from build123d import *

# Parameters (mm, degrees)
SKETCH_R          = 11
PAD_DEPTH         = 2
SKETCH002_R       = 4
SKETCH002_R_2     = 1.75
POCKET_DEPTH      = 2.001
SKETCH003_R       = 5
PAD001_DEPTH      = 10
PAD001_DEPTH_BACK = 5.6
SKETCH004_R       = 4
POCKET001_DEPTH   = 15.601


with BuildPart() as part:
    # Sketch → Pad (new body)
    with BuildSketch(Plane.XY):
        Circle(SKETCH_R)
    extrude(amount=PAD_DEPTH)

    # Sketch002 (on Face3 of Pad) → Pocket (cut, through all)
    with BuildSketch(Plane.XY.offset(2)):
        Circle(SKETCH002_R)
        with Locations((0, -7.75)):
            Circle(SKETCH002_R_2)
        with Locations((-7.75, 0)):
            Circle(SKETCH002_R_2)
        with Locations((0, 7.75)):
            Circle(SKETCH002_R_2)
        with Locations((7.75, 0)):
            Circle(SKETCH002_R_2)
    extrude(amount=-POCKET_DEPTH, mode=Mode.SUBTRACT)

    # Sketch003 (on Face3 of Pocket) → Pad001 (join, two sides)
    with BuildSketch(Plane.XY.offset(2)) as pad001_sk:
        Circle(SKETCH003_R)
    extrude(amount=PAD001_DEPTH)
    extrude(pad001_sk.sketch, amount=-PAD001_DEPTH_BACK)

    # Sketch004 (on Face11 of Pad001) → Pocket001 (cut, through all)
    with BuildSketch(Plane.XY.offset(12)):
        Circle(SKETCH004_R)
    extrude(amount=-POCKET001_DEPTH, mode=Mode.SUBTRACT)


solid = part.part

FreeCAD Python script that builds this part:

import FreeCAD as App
import Part
import Sketcher
Q = App.Units.Quantity

doc = App.newDocument("Part")
params = doc.addObject("Spreadsheet::Sheet", "Params")
for row, (alias, value) in enumerate([
    ("sketch1_diameter", "22 mm"),
    ("pad1_length", "2 mm"),
    ("sketch2_diameter", "8 mm"),
    ("sketch2_diameter2", "3.5 mm"),
    ("sketch3_diameter", "10 mm"),
    ("pad2_length", "10 mm"),
    ("pad2_length2", "5.6 mm"),
    ("sketch4_diameter", "8 mm"),
], start=1):
    params.set(f"A{row}", alias)
    params.set(f"B{row}", "=" + value)
    params.setAlias(f"B{row}", alias)

body = doc.addObject("PartDesign::Body", "Body")

sketch1 = doc.addObject("Sketcher::SketchObject", "Sketch")
body.addObject(sketch1)
sketch1.AttachmentSupport = (doc.XY_Plane, [""])
sketch1.MapMode = "FlatFace"
sketch1.addGeometry(Part.Circle(App.Vector(0, 0, 0), App.Vector(0, 0, 1), 11), False)
sketch1.addConstraint(Sketcher.Constraint("Coincident", 0, 3, -1, 1))
sketch1.addConstraint(Sketcher.Constraint("Diameter", 0, Q("22 mm")))
sketch1.setExpression("Constraints[1]", "Params.sketch1_diameter")
pad1 = doc.addObject("PartDesign::Pad", "Pad")
body.addObject(pad1)
pad1.Profile = sketch1
pad1.setExpression("Length", "Params.pad1_length")

sketch2 = doc.addObject("Sketcher::SketchObject", "Sketch001")
body.addObject(sketch2)
sketch2.AttachmentSupport = (doc.XY_Plane, [""])
sketch2.MapMode = "FlatFace"
sketch2.AttachmentOffset = App.Placement(App.Vector(0, 0, 2), App.Rotation())
sketch2.addGeometry(Part.Circle(App.Vector(0, 0, 0), App.Vector(0, 0, 1), 4), False)
sketch2.addGeometry(Part.Circle(App.Vector(0, -7.8, 0), App.Vector(0, 0, 1), 1.8), False)
sketch2.addGeometry(Part.Circle(App.Vector(-7.8, 0, 0), App.Vector(0, 0, 1), 1.8), False)
sketch2.addGeometry(Part.Circle(App.Vector(0, 7.8, 0), App.Vector(0, 0, 1), 1.8), False)
sketch2.addGeometry(Part.Circle(App.Vector(7.8, 0, 0), App.Vector(0, 0, 1), 1.8), False)
sketch2.addConstraint(Sketcher.Constraint("Coincident", 0, 3, -1, 1))
sketch2.addConstraint(Sketcher.Constraint("Equal", 1, 2))
sketch2.addConstraint(Sketcher.Constraint("Equal", 2, 3))
sketch2.addConstraint(Sketcher.Constraint("Equal", 3, 4))
sketch2.addConstraint(Sketcher.Constraint("Symmetric", 1, 3, 3, 3, -1, 1))
sketch2.addConstraint(Sketcher.Constraint("Symmetric", 2, 3, 4, 3, -1, 1))
sketch2.addConstraint(Sketcher.Constraint("PointOnObject", 1, 3, -2))
sketch2.addConstraint(Sketcher.Constraint("PointOnObject", 2, 3, -1))
sketch2.addConstraint(Sketcher.Constraint("Diameter", 0, Q("8 mm")))
sketch2.addConstraint(Sketcher.Constraint("Diameter", 1, Q("3.5 mm")))
sketch2.addConstraint(Sketcher.Constraint("DistanceY", 1, 3, 3, 3, Q("15.5 mm")))
sketch2.addConstraint(Sketcher.Constraint("DistanceX", 2, 3, 4, 3, Q("15.5 mm")))
sketch2.setExpression("Constraints[8]", "Params.sketch2_diameter")
sketch2.setExpression("Constraints[9]", "Params.sketch2_diameter2")
pocket1 = doc.addObject("PartDesign::Pocket", "Pocket")
body.addObject(pocket1)
pocket1.Profile = sketch2
pocket1.Type = "ThroughAll"

sketch3 = doc.addObject("Sketcher::SketchObject", "Sketch002")
body.addObject(sketch3)
sketch3.AttachmentSupport = (doc.XY_Plane, [""])
sketch3.MapMode = "FlatFace"
sketch3.AttachmentOffset = App.Placement(App.Vector(0, 0, 2), App.Rotation())
sketch3.addGeometry(Part.Circle(App.Vector(0, 0, 0), App.Vector(0, 0, 1), 5), False)
sketch3.addConstraint(Sketcher.Constraint("Coincident", 0, 3, -1, 1))
sketch3.addConstraint(Sketcher.Constraint("Diameter", 0, Q("10 mm")))
sketch3.setExpression("Constraints[1]", "Params.sketch3_diameter")
pad2 = doc.addObject("PartDesign::Pad", "Pad001")
body.addObject(pad2)
pad2.Profile = sketch3
pad2.Type = "TwoLengths"
pad2.setExpression("Length", "Params.pad2_length")
pad2.setExpression("Length2", "Params.pad2_length2")

sketch4 = doc.addObject("Sketcher::SketchObject", "Sketch003")
body.addObject(sketch4)
sketch4.AttachmentSupport = (doc.XY_Plane, [""])
sketch4.MapMode = "FlatFace"
sketch4.AttachmentOffset = App.Placement(App.Vector(0, 0, 12), App.Rotation())
sketch4.addGeometry(Part.Circle(App.Vector(0, 0, 0), App.Vector(0, 0, 1), 4), False)
sketch4.addConstraint(Sketcher.Constraint("Coincident", 0, 3, -1, 1))
sketch4.addConstraint(Sketcher.Constraint("Diameter", 0, Q("8 mm")))
sketch4.setExpression("Constraints[1]", "Params.sketch4_diameter")
pocket2 = doc.addObject("PartDesign::Pocket", "Pocket001")
body.addObject(pocket2)
pocket2.Profile = sketch4
pocket2.Type = "ThroughAll"

doc.recompute()
